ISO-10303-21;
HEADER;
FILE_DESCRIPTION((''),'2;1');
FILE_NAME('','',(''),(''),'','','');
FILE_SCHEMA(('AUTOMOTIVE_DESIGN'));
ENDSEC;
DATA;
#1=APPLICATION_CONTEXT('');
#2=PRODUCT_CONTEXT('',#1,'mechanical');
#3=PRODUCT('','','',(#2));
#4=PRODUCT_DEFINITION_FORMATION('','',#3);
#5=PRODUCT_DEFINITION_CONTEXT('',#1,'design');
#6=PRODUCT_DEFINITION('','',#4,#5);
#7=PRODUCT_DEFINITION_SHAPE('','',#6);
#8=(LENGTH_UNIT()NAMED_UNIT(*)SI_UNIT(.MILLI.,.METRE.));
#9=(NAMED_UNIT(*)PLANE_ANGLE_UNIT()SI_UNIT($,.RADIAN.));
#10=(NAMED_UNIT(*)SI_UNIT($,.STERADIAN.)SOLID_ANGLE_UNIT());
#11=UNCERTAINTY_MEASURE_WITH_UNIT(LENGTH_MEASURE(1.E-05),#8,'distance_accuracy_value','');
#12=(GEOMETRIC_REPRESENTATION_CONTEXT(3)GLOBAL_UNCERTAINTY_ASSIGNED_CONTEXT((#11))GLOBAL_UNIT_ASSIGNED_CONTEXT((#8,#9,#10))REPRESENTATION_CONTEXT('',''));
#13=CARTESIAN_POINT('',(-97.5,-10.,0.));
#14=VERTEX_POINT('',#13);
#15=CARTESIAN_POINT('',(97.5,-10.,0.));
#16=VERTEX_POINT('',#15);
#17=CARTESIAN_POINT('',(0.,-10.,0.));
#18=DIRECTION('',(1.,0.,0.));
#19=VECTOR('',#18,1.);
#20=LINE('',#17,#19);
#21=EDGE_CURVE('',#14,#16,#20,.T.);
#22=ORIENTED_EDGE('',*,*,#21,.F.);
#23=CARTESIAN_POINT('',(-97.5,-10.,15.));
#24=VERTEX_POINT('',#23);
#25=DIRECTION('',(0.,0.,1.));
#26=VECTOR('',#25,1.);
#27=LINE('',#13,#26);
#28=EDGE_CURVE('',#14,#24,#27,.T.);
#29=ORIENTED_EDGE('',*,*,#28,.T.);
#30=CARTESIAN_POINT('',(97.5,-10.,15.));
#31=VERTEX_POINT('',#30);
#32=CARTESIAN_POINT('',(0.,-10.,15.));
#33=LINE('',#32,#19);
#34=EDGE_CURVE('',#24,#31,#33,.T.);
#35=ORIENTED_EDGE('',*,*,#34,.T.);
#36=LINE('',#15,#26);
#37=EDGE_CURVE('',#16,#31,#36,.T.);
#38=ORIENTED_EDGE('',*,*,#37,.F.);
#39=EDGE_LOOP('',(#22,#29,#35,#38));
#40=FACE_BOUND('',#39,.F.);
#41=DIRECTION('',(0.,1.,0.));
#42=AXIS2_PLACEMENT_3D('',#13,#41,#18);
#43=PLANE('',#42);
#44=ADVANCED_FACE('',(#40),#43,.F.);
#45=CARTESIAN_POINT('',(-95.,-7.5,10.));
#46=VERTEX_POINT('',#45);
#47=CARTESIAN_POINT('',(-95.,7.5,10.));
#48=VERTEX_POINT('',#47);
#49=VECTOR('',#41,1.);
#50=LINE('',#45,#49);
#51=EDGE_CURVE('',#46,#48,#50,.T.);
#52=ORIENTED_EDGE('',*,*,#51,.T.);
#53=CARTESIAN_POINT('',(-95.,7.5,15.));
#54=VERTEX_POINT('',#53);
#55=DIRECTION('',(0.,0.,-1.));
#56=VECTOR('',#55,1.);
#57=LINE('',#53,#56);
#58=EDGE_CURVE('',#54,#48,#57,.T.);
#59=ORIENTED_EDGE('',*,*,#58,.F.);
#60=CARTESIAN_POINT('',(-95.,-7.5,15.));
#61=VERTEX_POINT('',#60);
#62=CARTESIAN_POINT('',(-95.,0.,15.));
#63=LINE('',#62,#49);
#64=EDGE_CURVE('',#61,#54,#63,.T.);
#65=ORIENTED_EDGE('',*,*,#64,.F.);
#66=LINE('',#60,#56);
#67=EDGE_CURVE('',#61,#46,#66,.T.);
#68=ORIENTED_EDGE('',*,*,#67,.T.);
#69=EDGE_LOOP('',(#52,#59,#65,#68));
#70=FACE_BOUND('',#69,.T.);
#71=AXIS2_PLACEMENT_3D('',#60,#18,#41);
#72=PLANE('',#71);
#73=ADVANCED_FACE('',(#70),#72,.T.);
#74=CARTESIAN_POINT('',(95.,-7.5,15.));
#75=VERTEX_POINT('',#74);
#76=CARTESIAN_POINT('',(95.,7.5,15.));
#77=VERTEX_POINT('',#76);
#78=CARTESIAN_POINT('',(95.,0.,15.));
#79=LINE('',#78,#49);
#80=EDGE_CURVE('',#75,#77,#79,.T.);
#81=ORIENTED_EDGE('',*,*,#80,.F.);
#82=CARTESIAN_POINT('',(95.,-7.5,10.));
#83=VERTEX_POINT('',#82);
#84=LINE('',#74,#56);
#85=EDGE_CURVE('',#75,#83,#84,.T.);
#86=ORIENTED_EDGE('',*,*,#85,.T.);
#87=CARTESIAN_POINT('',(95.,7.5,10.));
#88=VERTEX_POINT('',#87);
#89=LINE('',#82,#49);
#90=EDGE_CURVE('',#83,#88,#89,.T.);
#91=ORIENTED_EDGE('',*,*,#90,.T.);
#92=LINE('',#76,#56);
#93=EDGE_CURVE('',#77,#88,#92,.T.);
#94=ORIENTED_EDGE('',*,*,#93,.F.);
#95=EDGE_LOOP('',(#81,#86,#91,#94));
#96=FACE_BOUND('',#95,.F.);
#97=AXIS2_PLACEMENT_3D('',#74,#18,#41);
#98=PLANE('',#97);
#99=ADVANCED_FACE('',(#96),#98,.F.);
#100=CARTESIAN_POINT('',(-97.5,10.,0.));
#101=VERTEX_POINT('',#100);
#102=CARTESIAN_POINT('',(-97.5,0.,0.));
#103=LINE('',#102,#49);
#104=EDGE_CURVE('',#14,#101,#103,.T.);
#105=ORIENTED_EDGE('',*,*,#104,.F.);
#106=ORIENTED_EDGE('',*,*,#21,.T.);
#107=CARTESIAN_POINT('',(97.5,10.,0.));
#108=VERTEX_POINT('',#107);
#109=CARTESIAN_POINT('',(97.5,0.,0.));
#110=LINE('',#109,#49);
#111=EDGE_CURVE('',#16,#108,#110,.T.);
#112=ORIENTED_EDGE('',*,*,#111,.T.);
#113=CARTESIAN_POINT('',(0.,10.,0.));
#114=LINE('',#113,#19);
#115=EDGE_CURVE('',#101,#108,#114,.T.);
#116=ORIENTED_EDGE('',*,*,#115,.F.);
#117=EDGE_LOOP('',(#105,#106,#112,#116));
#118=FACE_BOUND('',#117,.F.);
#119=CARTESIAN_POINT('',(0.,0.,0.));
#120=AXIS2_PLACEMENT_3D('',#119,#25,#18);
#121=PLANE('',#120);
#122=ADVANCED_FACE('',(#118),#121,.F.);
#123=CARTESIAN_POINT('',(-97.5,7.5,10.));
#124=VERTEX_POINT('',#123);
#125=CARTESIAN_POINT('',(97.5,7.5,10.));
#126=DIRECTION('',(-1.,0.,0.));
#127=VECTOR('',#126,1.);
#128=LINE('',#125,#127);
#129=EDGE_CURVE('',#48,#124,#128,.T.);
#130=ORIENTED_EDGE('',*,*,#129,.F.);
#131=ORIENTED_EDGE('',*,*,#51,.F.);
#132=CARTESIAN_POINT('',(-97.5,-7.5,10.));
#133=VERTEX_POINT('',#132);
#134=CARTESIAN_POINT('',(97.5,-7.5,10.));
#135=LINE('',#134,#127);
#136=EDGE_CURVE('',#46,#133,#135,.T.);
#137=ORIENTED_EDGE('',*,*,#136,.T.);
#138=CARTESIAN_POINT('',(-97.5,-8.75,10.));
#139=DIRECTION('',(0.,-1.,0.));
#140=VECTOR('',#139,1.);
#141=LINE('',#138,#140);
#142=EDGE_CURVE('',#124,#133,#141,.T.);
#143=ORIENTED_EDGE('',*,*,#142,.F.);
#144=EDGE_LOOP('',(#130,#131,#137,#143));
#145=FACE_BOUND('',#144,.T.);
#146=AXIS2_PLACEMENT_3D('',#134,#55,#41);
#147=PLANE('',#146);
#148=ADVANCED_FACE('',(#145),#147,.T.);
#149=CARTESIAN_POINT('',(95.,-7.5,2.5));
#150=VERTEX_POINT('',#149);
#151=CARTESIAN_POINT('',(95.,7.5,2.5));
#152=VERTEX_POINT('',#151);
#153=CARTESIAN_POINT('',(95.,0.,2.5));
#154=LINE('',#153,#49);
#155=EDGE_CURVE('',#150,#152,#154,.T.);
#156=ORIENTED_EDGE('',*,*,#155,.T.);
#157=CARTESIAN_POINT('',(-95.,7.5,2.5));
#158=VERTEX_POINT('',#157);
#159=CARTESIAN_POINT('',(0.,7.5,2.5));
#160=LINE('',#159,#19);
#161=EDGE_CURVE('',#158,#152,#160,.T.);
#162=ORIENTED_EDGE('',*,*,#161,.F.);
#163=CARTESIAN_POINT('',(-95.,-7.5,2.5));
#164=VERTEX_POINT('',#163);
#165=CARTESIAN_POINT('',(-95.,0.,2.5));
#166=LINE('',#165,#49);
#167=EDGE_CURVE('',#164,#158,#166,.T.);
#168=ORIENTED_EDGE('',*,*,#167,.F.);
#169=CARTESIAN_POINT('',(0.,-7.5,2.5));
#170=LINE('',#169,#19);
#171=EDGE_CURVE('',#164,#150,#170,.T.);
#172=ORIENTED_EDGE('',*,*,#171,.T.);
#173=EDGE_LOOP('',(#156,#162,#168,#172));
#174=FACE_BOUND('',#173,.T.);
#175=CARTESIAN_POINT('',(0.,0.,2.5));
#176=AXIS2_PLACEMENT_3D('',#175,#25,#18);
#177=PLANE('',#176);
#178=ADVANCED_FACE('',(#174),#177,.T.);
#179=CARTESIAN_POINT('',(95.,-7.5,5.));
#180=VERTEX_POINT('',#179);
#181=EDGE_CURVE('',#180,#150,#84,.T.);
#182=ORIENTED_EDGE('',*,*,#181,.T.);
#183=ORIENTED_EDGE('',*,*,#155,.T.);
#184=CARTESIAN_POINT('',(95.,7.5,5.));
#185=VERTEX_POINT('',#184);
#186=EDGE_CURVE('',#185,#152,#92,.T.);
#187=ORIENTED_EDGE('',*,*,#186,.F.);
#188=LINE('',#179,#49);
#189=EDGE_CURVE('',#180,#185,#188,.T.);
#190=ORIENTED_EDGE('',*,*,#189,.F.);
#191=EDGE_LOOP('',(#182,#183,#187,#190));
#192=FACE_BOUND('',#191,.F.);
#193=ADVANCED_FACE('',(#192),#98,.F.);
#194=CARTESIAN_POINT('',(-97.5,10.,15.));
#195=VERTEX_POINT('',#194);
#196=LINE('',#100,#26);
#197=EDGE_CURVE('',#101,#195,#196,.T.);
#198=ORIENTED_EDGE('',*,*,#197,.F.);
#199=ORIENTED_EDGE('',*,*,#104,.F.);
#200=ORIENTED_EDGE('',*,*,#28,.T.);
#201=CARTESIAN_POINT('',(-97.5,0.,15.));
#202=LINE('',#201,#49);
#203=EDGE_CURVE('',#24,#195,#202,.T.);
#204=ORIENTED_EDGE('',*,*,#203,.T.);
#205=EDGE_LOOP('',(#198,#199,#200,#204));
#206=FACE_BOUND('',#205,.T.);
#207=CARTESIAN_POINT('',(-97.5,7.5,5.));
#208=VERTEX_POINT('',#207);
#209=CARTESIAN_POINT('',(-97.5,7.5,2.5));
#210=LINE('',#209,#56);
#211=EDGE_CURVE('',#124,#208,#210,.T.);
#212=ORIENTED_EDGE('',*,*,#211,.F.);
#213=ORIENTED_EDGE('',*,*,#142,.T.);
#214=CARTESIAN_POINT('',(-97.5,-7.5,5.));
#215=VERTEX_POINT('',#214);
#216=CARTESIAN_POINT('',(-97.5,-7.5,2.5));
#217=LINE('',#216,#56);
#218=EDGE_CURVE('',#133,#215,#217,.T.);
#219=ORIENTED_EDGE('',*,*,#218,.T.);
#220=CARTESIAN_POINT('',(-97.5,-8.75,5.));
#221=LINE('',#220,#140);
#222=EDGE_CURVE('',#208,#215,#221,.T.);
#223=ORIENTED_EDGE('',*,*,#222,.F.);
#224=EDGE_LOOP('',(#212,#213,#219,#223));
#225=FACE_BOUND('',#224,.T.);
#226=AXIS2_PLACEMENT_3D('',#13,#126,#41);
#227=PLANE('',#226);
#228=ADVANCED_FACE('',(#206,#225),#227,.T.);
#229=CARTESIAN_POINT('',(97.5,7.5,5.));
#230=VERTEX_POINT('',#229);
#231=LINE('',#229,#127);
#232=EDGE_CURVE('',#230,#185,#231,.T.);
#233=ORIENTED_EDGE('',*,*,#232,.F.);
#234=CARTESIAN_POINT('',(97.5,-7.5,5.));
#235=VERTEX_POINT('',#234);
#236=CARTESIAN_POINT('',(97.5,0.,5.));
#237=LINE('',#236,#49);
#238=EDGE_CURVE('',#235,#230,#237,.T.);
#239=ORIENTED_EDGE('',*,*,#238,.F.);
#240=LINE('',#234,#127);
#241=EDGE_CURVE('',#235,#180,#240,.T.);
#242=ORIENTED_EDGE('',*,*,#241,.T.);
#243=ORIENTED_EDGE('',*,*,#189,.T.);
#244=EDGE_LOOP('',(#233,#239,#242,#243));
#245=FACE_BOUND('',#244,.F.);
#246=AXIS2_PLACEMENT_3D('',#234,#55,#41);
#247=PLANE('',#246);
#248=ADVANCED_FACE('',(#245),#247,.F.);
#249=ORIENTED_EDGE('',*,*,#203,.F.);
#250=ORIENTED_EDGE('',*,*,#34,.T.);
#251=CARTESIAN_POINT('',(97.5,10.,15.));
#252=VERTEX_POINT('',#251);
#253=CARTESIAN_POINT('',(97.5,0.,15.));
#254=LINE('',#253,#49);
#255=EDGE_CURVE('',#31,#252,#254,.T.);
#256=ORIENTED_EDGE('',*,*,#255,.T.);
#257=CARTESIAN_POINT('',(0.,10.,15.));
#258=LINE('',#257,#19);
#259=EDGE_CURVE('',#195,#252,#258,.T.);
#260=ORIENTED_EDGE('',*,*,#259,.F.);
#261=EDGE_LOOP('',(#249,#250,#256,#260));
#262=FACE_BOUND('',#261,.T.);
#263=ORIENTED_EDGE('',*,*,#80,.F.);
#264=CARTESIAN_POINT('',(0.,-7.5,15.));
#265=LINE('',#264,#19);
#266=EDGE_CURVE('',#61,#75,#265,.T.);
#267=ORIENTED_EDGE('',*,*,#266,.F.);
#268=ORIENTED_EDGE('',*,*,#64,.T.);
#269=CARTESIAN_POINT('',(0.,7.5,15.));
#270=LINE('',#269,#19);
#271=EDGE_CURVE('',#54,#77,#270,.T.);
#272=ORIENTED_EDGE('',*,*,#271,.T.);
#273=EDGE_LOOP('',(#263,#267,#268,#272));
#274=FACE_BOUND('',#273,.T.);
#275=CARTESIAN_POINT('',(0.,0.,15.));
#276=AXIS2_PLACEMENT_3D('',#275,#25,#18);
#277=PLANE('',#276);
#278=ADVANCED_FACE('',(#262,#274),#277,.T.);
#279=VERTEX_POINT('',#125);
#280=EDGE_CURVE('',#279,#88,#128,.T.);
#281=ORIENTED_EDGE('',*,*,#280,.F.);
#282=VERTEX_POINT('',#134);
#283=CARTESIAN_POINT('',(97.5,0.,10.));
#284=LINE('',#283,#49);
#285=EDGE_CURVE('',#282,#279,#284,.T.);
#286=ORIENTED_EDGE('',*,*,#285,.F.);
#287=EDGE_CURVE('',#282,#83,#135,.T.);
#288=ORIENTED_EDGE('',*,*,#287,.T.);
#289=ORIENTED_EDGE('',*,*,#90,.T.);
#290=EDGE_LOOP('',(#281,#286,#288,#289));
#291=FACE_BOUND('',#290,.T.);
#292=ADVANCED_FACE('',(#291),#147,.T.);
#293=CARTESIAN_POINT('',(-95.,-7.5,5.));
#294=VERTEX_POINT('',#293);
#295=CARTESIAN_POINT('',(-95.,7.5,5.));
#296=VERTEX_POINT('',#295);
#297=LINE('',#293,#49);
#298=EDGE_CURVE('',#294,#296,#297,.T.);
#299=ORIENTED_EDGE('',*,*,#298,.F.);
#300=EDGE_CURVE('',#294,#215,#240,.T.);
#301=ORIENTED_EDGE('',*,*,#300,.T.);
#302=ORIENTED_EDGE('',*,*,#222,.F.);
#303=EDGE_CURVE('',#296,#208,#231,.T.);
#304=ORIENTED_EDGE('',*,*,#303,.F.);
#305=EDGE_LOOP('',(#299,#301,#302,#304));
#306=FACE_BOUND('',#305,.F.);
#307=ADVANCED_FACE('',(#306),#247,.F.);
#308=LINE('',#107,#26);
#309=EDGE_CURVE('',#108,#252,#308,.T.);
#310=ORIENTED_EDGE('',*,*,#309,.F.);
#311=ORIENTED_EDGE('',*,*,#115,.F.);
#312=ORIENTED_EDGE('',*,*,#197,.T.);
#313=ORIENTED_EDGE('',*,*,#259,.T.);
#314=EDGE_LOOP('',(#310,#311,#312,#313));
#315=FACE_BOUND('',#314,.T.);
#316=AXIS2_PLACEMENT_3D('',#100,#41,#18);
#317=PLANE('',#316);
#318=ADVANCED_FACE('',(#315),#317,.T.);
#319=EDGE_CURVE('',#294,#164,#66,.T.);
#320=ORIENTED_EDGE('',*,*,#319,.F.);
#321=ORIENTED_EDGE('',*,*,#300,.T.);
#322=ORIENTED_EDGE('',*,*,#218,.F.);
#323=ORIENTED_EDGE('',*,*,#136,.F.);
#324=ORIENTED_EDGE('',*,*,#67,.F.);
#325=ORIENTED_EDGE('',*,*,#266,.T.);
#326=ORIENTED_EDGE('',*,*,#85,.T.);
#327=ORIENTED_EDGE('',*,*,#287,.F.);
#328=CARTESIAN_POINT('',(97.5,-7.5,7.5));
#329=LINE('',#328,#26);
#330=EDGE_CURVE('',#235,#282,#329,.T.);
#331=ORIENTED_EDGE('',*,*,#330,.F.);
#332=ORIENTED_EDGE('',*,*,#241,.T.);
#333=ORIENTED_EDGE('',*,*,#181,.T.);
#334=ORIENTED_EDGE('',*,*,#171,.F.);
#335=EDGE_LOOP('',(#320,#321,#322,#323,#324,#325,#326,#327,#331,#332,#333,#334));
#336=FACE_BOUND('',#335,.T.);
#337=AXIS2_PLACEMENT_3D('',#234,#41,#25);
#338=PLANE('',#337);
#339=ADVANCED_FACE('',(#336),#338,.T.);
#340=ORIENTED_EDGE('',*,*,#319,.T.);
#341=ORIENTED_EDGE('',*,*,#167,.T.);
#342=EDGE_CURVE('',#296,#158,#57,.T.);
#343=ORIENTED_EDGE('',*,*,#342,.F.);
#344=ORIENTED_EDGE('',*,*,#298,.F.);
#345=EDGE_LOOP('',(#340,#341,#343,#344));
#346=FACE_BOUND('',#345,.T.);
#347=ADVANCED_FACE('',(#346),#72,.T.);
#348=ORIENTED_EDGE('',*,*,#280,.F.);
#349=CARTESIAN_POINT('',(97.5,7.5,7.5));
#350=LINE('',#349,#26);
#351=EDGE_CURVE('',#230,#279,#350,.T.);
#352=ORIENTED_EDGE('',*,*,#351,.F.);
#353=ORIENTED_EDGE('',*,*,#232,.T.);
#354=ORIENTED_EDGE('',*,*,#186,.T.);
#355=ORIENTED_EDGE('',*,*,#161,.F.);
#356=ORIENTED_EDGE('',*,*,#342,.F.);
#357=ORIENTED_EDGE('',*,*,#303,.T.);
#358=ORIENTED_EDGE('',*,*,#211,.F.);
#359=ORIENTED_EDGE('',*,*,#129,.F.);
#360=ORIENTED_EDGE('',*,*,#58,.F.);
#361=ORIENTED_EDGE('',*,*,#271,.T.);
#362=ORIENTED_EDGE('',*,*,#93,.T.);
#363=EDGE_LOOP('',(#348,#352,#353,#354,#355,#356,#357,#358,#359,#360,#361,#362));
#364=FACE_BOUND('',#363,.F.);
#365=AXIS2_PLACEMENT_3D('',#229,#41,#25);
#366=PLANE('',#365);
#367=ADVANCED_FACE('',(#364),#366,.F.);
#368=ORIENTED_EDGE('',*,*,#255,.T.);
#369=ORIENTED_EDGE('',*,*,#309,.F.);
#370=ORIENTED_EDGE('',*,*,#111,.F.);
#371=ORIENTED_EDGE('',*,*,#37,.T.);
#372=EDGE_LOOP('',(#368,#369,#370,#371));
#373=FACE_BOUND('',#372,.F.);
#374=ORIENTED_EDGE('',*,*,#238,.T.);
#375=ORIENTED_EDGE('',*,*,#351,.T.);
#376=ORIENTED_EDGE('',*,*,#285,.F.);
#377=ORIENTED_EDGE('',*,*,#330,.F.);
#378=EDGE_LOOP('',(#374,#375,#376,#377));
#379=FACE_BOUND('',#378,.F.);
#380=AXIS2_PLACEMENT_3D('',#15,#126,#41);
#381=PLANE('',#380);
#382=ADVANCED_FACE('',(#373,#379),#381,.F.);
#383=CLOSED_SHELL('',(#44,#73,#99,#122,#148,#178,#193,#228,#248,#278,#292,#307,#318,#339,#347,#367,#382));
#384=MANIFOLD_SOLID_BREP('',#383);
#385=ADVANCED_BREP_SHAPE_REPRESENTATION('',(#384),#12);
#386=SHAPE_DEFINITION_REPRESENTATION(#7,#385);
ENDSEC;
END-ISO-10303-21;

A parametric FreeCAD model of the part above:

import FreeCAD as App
import Part
import Sketcher
Q = App.Units.Quantity

doc = App.newDocument("Part")
body = doc.addObject("PartDesign::Body", "Body")

# Sketch on XY plane
sketch1 = body.newObject("Sketcher::SketchObject", "Sketch")
sketch1.AttachmentSupport = (doc.getObject("XY_Plane"), [""])
sketch1.MapMode = "FlatFace"
sketch1.addGeometry([
    Part.LineSegment(App.Vector(-97.5, 10, 0), App.Vector(-97.5, -10, 0)),
    Part.LineSegment(App.Vector(-97.5, -10, 0), App.Vector(97.5, -10, 0)),
    Part.LineSegment(App.Vector(97.5, -10, 0), App.Vector(97.5, 10, 0)),
    Part.LineSegment(App.Vector(97.5, 10, 0), App.Vector(-97.5, 10, 0)),
], False)
sketch1.addConstraint([
    Sketcher.Constraint("Coincident", 0, 2, 1, 1),
    Sketcher.Constraint("Coincident", 1, 2, 2, 1),
    Sketcher.Constraint("Coincident", 2, 2, 3, 1),
    Sketcher.Constraint("Coincident", 3, 2, 0, 1),
    Sketcher.Constraint("Vertical", 0),
    Sketcher.Constraint("Horizontal", 1),
    Sketcher.Constraint("Vertical", 2),
    Sketcher.Constraint("Horizontal", 3),
    Sketcher.Constraint("Symmetric", 0, 2, 2, 2, -1, 1),
    Sketcher.Constraint("DistanceX", 1, 1, 1, 2, Q("195 mm")),
    Sketcher.Constraint("DistanceY", 0, 2, 0, 1, Q("20 mm")),
])
pad1 = body.newObject("PartDesign::Pad", "Pad")
pad1.Profile = sketch1
pad1.Length = 15

# Sketch on XY plane
sketch2 = body.newObject("Sketcher::SketchObject", "Sketch001")
sketch2.AttachmentSupport = (doc.getObject("XY_Plane"), [""])
sketch2.MapMode = "FlatFace"
sketch2.AttachmentOffset = App.Placement(App.Vector(0, 0, 15), App.Rotation())
sketch2.addGeometry([
    Part.LineSegment(App.Vector(-95, 7.5, 0), App.Vector(-95, -7.5, 0)),
    Part.LineSegment(App.Vector(-95, -7.5, 0), App.Vector(95, -7.5, 0)),
    Part.LineSegment(App.Vector(95, -7.5, 0), App.Vector(95, 7.5, 0)),
    Part.LineSegment(App.Vector(95, 7.5, 0), App.Vector(-95, 7.5, 0)),
], False)
sketch2.addConstraint([
    Sketcher.Constraint("Coincident", 0, 2, 1, 1),
    Sketcher.Constraint("Coincident", 1, 2, 2, 1),
    Sketcher.Constraint("Coincident", 2, 2, 3, 1),
    Sketcher.Constraint("Coincident", 3, 2, 0, 1),
    Sketcher.Constraint("Vertical", 0),
    Sketcher.Constraint("Horizontal", 1),
    Sketcher.Constraint("Vertical", 2),
    Sketcher.Constraint("Horizontal", 3),
    Sketcher.Constraint("Symmetric", 0, 2, 2, 2, -1, 1),
    Sketcher.Constraint("DistanceX", 1, 1, 1, 2, Q("190 mm")),
    Sketcher.Constraint("DistanceY", 0, 2, 0, 1, Q("15 mm")),
])
pocket1 = body.newObject("PartDesign::Pocket", "Pocket")
pocket1.Profile = sketch2
pocket1.Length = 12.5

# Sketch on YZ plane
sketch3 = body.newObject("Sketcher::SketchObject", "Sketch002")
sketch3.AttachmentSupport = (doc.getObject("YZ_Plane"), [""])
sketch3.MapMode = "FlatFace"
sketch3.AttachmentOffset = App.Placement(App.Vector(0, 0, 97.5), App.Rotation())
sketch3.addGeometry([
    Part.LineSegment(App.Vector(-7.5, 10, 0), App.Vector(-7.5, 5, 0)),
    Part.LineSegment(App.Vector(-7.5, 5, 0), App.Vector(7.5, 5, 0)),
    Part.LineSegment(App.Vector(7.5, 5, 0), App.Vector(7.5, 10, 0)),
    Part.LineSegment(App.Vector(7.5, 10, 0), App.Vector(-7.5, 10, 0)),
], False)
sketch3.addConstraint([
    Sketcher.Constraint("Coincident", 0, 2, 1, 1),
    Sketcher.Constraint("Coincident", 1, 2, 2, 1),
    Sketcher.Constraint("Coincident", 2, 2, 3, 1),
    Sketcher.Constraint("Coincident", 3, 2, 0, 1),
    Sketcher.Constraint("Vertical", 0),
    Sketcher.Constraint("Horizontal", 1),
    Sketcher.Constraint("Vertical", 2),
    Sketcher.Constraint("Horizontal", 3),
    Sketcher.Constraint("DistanceX", 1, 1, 1, 2, Q("15 mm")),
    Sketcher.Constraint("DistanceY", 0, 2, 0, 1, Q("5 mm")),
    Sketcher.Constraint("DistanceY", -1, 1, 0, 2, Q("5 mm")),
    Sketcher.Constraint("DistanceX", 0, 2, -1, 1, Q("7.5 mm")),
])
pocket2 = body.newObject("PartDesign::Pocket", "Pocket001")
pocket2.Profile = sketch3
pocket2.Type = "ThroughAll"

doc.recompute()
